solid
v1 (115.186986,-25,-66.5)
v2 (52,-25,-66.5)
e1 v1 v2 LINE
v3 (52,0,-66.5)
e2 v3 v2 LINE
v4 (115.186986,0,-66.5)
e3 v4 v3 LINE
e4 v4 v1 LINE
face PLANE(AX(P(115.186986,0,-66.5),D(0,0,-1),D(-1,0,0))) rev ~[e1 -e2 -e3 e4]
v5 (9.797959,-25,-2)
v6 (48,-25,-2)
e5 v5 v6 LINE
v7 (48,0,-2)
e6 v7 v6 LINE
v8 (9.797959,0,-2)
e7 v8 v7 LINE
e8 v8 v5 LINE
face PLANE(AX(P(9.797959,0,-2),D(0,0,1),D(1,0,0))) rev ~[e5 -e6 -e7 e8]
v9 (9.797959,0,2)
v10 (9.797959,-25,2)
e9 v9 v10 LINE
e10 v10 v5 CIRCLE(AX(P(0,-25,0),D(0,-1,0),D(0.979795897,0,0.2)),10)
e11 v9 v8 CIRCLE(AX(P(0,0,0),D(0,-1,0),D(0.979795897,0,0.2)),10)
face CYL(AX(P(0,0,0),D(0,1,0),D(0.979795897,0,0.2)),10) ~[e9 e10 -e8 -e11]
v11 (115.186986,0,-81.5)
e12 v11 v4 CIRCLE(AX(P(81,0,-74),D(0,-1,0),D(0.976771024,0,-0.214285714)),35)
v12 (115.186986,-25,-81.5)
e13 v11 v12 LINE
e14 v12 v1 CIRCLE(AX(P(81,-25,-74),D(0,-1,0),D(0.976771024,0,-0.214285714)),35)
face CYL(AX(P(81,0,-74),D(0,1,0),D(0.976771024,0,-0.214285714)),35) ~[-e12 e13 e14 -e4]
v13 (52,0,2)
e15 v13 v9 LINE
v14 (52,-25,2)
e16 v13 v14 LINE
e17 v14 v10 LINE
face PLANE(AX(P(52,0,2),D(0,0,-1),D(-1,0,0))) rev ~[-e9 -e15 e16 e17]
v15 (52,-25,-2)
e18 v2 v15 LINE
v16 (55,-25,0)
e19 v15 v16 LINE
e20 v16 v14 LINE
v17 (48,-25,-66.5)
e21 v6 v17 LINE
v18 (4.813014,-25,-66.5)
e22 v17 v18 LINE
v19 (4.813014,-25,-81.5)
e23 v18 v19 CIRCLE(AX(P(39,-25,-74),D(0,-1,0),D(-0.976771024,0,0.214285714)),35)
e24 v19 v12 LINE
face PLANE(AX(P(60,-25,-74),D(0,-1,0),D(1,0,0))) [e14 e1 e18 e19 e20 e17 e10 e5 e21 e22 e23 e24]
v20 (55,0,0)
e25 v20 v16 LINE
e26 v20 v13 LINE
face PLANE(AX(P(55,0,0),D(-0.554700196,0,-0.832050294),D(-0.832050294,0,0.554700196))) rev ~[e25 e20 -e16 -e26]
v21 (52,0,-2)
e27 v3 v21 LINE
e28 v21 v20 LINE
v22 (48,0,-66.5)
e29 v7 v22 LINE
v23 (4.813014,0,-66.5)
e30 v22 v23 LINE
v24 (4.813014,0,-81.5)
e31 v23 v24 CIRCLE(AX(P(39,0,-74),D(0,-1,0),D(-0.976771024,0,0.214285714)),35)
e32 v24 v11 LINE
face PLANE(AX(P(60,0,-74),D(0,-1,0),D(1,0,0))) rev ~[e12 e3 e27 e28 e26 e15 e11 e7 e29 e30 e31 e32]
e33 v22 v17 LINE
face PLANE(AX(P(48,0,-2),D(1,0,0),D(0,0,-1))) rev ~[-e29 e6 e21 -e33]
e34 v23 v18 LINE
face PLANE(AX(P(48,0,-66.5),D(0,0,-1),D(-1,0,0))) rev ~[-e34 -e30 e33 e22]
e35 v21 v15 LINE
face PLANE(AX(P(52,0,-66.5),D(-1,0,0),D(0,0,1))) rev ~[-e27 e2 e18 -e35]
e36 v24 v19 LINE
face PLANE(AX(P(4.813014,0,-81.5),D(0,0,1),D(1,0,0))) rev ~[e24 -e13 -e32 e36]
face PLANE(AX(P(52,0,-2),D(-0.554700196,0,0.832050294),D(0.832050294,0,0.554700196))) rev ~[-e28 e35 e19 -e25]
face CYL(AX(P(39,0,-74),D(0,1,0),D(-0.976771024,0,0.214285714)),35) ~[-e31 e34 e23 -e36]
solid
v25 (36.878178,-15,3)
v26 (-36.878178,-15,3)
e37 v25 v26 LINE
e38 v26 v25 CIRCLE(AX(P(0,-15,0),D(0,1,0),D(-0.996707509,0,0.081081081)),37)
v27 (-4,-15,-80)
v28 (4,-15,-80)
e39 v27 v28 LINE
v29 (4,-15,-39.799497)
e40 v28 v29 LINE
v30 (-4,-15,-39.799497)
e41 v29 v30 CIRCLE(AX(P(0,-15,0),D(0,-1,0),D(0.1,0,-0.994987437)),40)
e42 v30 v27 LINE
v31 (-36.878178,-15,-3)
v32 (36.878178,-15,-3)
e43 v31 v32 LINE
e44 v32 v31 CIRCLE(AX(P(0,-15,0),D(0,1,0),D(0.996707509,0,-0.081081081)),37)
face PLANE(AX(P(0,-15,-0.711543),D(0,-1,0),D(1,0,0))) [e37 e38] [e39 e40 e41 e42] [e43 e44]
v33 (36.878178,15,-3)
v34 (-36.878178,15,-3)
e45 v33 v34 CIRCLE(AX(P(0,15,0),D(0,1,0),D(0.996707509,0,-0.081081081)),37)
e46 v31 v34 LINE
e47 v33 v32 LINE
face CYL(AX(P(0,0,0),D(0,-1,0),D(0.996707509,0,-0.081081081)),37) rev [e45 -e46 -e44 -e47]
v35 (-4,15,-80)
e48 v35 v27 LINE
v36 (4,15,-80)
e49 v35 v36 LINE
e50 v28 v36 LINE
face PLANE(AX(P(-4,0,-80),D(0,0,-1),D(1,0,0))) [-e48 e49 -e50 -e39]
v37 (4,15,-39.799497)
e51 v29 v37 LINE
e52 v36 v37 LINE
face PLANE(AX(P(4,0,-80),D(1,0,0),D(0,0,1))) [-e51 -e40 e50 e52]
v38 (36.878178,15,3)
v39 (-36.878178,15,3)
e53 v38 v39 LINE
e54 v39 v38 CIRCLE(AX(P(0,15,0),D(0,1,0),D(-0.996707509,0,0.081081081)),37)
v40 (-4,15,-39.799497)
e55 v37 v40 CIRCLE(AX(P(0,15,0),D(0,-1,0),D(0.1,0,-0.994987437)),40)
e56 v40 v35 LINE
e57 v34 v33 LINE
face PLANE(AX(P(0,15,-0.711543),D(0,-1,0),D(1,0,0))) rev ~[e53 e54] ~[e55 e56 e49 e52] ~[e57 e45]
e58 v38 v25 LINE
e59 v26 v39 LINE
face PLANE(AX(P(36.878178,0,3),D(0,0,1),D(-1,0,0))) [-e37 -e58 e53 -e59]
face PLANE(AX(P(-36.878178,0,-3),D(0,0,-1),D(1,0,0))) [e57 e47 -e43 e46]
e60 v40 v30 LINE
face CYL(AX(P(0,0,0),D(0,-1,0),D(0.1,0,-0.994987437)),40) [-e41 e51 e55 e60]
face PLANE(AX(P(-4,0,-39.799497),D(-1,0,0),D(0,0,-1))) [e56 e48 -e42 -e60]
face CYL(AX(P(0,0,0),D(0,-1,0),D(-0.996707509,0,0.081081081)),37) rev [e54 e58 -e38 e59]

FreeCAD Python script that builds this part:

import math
import FreeCAD as App
import Part
import Sketcher
from FreeCAD import Vector

doc = App.newDocument("Part")
body = doc.addObject("PartDesign::Body", "Body")

# Sketch on XZ plane
sketch1 = body.newObject("Sketcher::SketchObject", "Sketch")
sketch1.AttachmentSupport = (doc.getObject("XZ_Plane"), [""])
sketch1.MapMode = "FlatFace"
sketch1.addGeometry([
    Part.ArcOfCircle(Part.Circle(Vector(0, 0, 0), Vector(0, 0, 1), 40), math.radians(-84), math.radians(264)),  # 0
    Part.LineSegment(Vector(-4, -40, 0), Vector(-4, -80, 0)),  # 1
    Part.LineSegment(Vector(-4, -80, 0), Vector(4, -80, 0)),  # 2
    Part.LineSegment(Vector(4, -80, 0), Vector(4, -40, 0)),  # 3
    Part.LineSegment(Vector(-37, -3, 0), Vector(37, -3, 0)),  # 4
    Part.ArcOfCircle(Part.Circle(Vector(0, 0, 0), Vector(0, 0, 1), 37), math.radians(-175), math.radians(-5)),  # 5
    Part.ArcOfCircle(Part.Circle(Vector(0, 0, 0), Vector(0, 0, 1), 37), math.radians(5), math.radians(175)),  # 6
    Part.LineSegment(Vector(37, 3, 0), Vector(-37, 3, 0)),  # 7
], False)
sketch1.addConstraint([
    Sketcher.Constraint("Coincident", 0, 2, 1, 1),
    Sketcher.Constraint("Coincident", 1, 2, 2, 1),
    Sketcher.Constraint("Coincident", 2, 2, 3, 1),
    Sketcher.Constraint("Coincident", 3, 2, 0, 1),
    Sketcher.Constraint("Coincident", 4, 1, 5, 1),
    Sketcher.Constraint("Coincident", 5, 2, 4, 2),
    Sketcher.Constraint("Coincident", 6, 1, 7, 1),
    Sketcher.Constraint("Coincident", 7, 2, 6, 2),
    Sketcher.Constraint("Vertical", 1),
    Sketcher.Constraint("Horizontal", 2),
    Sketcher.Constraint("Vertical", 3),
    Sketcher.Constraint("Horizontal", 4),
    Sketcher.Constraint("Horizontal", 7),
    Sketcher.Constraint("Coincident", 0, 3, -1, 1),
    Sketcher.Constraint("Coincident", 5, 3, -1, 1),
    Sketcher.Constraint("Coincident", 6, 3, -1, 1),
    Sketcher.Constraint("Equal", 5, 6),
    Sketcher.Constraint("Horizontal", 0, 2, 3, 2),
    Sketcher.Constraint("Vertical", 5, 2, 6, 1),
    Sketcher.Constraint("Radius", 0, 40.0),
    Sketcher.Constraint("Radius", 5, 37.0),
    Sketcher.Constraint("DistanceX", 2, 1, 2, 2, 8.0),
    Sketcher.Constraint("DistanceY", 1, 2, -1, 1, 80.0),
    Sketcher.Constraint("DistanceY", 4, 1, -1, 1, 3.0),
])
pad1 = body.newObject("PartDesign::Pad", "Pad")
pad1.Profile = sketch1
pad1.Length = 30
pad1.Midplane = True
body2 = doc.addObject("PartDesign::Body", "Body001")

# Sketch on XZ plane
sketch2 = body2.newObject("Sketcher::SketchObject", "Sketch001")
sketch2.AttachmentSupport = (doc.getObject("XZ_Plane001"), [""])
sketch2.MapMode = "FlatFace"
sketch2.addGeometry([
    Part.ArcOfCircle(Part.Circle(Vector(39, -74, 0), Vector(0, 0, 1), 35), math.radians(168), math.radians(192)),  # 0
    Part.LineSegment(Vector(4.8, -81.5, 0), Vector(115.2, -81.5, 0)),  # 1
    Part.ArcOfCircle(Part.Circle(Vector(81, -74, 0), Vector(0, 0, 1), 35), math.radians(-12), math.radians(12)),  # 2
    Part.LineSegment(Vector(115.2, -66.5, 0), Vector(52, -66.5, 0)),  # 3
    Part.LineSegment(Vector(52, -66.5, 0), Vector(52, -2, 0)),  # 4
    Part.LineSegment(Vector(52, -2, 0), Vector(55, 0, 0)),  # 5
    Part.LineSegment(Vector(55, 0, 0), Vector(52, 2, 0)),  # 6
    Part.LineSegment(Vector(52, 2, 0), Vector(9.8, 2, 0)),  # 7
    Part.ArcOfCircle(Part.Circle(Vector(0, 0, 0), Vector(0, 0, 1), 10), math.radians(12), math.radians(348)),  # 8
    Part.LineSegment(Vector(9.8, -2, 0), Vector(48, -2, 0)),  # 9
    Part.LineSegment(Vector(48, -2, 0), Vector(48, -66.5, 0)),  # 10
    Part.LineSegment(Vector(48, -66.5, 0), Vector(4.8, -66.5, 0)),  # 11
], False)
sketch2.addConstraint([
    Sketcher.Constraint("Coincident", 0, 2, 1, 1),
    Sketcher.Constraint("Coincident", 1, 2, 2, 1),
    Sketcher.Constraint("Coincident", 2, 2, 3, 1),
    Sketcher.Constraint("Coincident", 3, 2, 4, 1),
    Sketcher.Constraint("Coincident", 4, 2, 5, 1),
    Sketcher.Constraint("Coincident", 5, 2, 6, 1),
    Sketcher.Constraint("Coincident", 6, 2, 7, 1),
    Sketcher.Constraint("Coincident", 7, 2, 8, 1),
    Sketcher.Constraint("Coincident", 8, 2, 9, 1),
    Sketcher.Constraint("Coincident", 9, 2, 10, 1),
    Sketcher.Constraint("Coincident", 10, 2, 11, 1),
    Sketcher.Constraint("Coincident", 11, 2, 0, 1),
    Sketcher.Constraint("Horizontal", 1),
    Sketcher.Constraint("Horizontal", 3),
    Sketcher.Constraint("Vertical", 4),
    Sketcher.Constraint("Horizontal", 7),
    Sketcher.Constraint("Horizontal", 9),
    Sketcher.Constraint("Vertical", 10),
    Sketcher.Constraint("Horizontal", 11),
    Sketcher.Constraint("Coincident", 8, 3, -1, 1),
    Sketcher.Constraint("Equal", 0, 2),
    Sketcher.Constraint("Symmetric", 4, 2, 6, 2, -1),
    Sketcher.Constraint("PointOnObject", 5, 2, -1),
    Sketcher.Constraint("Horizontal", 0, 3, 2, 3),
    Sketcher.Constraint("Horizontal", 4, 2, 8, 2),
    Sketcher.Constraint("Horizontal", 3, 2, 10, 2),
    Sketcher.Constraint("Vertical", 1, 2, 2, 2),
    Sketcher.Constraint("Radius", 0, 35.0),
    Sketcher.Constraint("Radius", 8, 10.0),
    Sketcher.Constraint("DistanceY", 4, 1, 4, 2, 64.5),
    Sketcher.Constraint("DistanceX", -1, 1, 0, 3, 39.0),
    Sketcher.Constraint("DistanceY", 0, 3, -1, 1, 74.0),
    Sketcher.Constraint("DistanceX", -1, 1, 2, 3, 81.0),
    Sketcher.Constraint("DistanceX", -1, 1, 3, 2, 52.0),
    Sketcher.Constraint("DistanceY", 4, 2, -1, 1, 2.0),
    Sketcher.Constraint("DistanceX", -1, 1, 5, 2, 55.0),
    Sketcher.Constraint("DistanceX", -1, 1, 9, 2, 48.0),
])
pad2 = body2.newObject("PartDesign::Pad", "Pad001")
pad2.Profile = sketch2
pad2.Length = 25

doc.recompute()
